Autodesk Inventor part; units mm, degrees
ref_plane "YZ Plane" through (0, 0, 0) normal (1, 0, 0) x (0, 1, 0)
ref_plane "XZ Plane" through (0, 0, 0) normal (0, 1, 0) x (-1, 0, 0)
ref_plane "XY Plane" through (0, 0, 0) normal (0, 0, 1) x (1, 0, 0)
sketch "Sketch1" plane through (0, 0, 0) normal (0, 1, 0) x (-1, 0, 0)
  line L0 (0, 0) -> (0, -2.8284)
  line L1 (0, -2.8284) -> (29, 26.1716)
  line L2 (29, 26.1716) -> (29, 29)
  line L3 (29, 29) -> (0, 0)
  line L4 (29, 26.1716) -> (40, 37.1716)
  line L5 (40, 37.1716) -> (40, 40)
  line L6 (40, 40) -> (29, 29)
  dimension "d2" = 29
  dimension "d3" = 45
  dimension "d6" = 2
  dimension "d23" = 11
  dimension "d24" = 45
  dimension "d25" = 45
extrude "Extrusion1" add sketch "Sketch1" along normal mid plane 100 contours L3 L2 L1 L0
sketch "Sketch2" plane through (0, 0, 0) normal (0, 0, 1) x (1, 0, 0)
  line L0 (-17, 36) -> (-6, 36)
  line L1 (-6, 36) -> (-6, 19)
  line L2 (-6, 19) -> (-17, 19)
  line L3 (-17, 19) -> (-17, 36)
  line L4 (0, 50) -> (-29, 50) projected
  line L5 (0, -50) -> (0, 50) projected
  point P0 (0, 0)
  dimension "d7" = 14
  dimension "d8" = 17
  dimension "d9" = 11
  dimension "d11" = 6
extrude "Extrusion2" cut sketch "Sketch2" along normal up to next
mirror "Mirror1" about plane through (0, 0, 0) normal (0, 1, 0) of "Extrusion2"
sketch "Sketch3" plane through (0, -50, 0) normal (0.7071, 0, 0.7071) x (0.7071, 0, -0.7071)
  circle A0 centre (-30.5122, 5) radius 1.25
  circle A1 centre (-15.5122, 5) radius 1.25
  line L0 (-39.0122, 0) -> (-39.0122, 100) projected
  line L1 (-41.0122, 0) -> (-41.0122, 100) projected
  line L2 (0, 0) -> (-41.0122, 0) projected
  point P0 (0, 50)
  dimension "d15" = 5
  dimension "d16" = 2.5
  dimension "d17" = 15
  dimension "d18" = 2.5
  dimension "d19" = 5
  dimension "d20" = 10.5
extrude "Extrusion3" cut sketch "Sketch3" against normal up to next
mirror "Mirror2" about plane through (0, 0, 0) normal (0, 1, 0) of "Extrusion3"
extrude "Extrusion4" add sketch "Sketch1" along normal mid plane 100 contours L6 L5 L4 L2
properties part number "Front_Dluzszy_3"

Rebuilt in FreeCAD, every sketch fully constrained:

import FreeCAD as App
import Part
import Sketcher
Q = App.Units.Quantity

doc = App.newDocument("Part")
params = doc.addObject("Spreadsheet::Sheet", "Params")
for row, (alias, value) in enumerate([
    ("pad1_length", "100 mm"),
    ("sketch2_width", "11 mm"),
    ("sketch2_height", "17 mm"),
    ("pocket1_length", "17 mm"),
    ("sketch3_diameter", "2.5 mm"),
    ("pad2_length", "100 mm"),
], start=1):
    params.set(f"A{row}", alias)
    params.set(f"B{row}", "=" + value)
    params.setAlias(f"B{row}", alias)

body = doc.addObject("PartDesign::Body", "Body")

sketch1 = body.newObject("Sketcher::SketchObject", "Sketch")
sketch1.AttachmentSupport = (doc.getObject("XZ_Plane"), [""])
sketch1.MapMode = "FlatFace"
sketch1.addGeometry([
    Part.LineSegment(App.Vector(-29, 29, 0), App.Vector(0, 0, 0)),
    Part.LineSegment(App.Vector(0, 0, 0), App.Vector(0, -2.8284, 0)),
    Part.LineSegment(App.Vector(0, -2.8284, 0), App.Vector(-29, 26.1716, 0)),
    Part.LineSegment(App.Vector(-29, 26.1716, 0), App.Vector(-29, 29, 0)),
], False)
sketch1.addConstraint([
    Sketcher.Constraint("Coincident", 0, 2, 1, 1),
    Sketcher.Constraint("Coincident", 1, 2, 2, 1),
    Sketcher.Constraint("Coincident", 2, 2, 3, 1),
    Sketcher.Constraint("Coincident", 3, 2, 0, 1),
    Sketcher.Constraint("Vertical", 1),
    Sketcher.Constraint("Vertical", 3),
    Sketcher.Constraint("Coincident", 0, 2, -1, 1),
    Sketcher.Constraint("Parallel", 0, 2),
    Sketcher.Constraint("Angle", 0, Q("-45 deg")),
    Sketcher.Constraint("DistanceX", 2, 2, -1, 1, Q("29 mm")),
    Sketcher.Constraint("DistanceY", 1, 2, 1, 1, Q("2.8284 mm")),
])
pad1 = body.newObject("PartDesign::Pad", "Pad")
pad1.Profile = sketch1
pad1.setExpression("Length", "Params.pad1_length")
pad1.Midplane = True

sketch2 = body.newObject("Sketcher::SketchObject", "Sketch001")
sketch2.AttachmentSupport = (doc.getObject("XY_Plane"), [""])
sketch2.MapMode = "FlatFace"
sketch2.addGeometry([
    Part.LineSegment(App.Vector(-6, 36, 0), App.Vector(-17, 36, 0)),
    Part.LineSegment(App.Vector(-17, 36, 0), App.Vector(-17, 19, 0)),
    Part.LineSegment(App.Vector(-17, 19, 0), App.Vector(-6, 19, 0)),
    Part.LineSegment(App.Vector(-6, 19, 0), App.Vector(-6, 36, 0)),
], False)
sketch2.addConstraint([
    Sketcher.Constraint("Coincident", 0, 2, 1, 1),
    Sketcher.Constraint("Coincident", 1, 2, 2, 1),
    Sketcher.Constraint("Coincident", 2, 2, 3, 1),
    Sketcher.Constraint("Coincident", 3, 2, 0, 1),
    Sketcher.Constraint("Horizontal", 0),
    Sketcher.Constraint("Vertical", 1),
    Sketcher.Constraint("Horizontal", 2),
    Sketcher.Constraint("Vertical", 3),
    Sketcher.Constraint("DistanceX", 0, 2, 0, 1, Q("11 mm")),
    Sketcher.Constraint("DistanceY", 1, 2, 1, 1, Q("17 mm")),
    Sketcher.Constraint("DistanceX", 0, 2, -1, 1, Q("17 mm")),
    Sketcher.Constraint("DistanceY", -1, 1, 0, 2, Q("36 mm")),
])
sketch2.setExpression("Constraints[8]", "Params.sketch2_width")
sketch2.setExpression("Constraints[9]", "Params.sketch2_height")
pocket1 = body.newObject("PartDesign::Pocket", "Pocket")
pocket1.Profile = sketch2
pocket1.setExpression("Length", "Params.pocket1_length")
pocket1.Reversed = True
doc.recompute()

mirrored = body.newObject("PartDesign::Mirrored", "Mirrored")
mirrored.Originals = [pocket1]
mirrored.MirrorPlane = (doc.getObject("XZ_Plane"), [""])
body.Tip = mirrored

sketch3 = body.newObject("Sketcher::SketchObject", "Sketch002")
sketch3.Placement = App.Placement(App.Vector(0, -50, 0), App.Rotation(App.Vector(0.707106781, 0, -0.707106781), App.Vector(0, 0.999999999, 0), App.Vector(0.707106781, 0, 0.707106781), "ZXY"))
sketch3.addGeometry([
    Part.Circle(App.Vector(-30.5122, 5, 0), App.Vector(0, 0, 1), 1.25),
    Part.Circle(App.Vector(-15.5122, 5, 0), App.Vector(0, 0, 1), 1.25),
], False)
sketch3.addConstraint([
    Sketcher.Constraint("Equal", 0, 1),
    Sketcher.Constraint("Horizontal", 0, 3, 1, 3),
    Sketcher.Constraint("Diameter", 0, Q("2.5 mm")),
    Sketcher.Constraint("DistanceY", -1, 1, 0, 3, Q("5 mm")),
    Sketcher.Constraint("DistanceX", 0, 3, 1, 3, Q("15 mm")),
    Sketcher.Constraint("DistanceX", 0, 3, -1, 1, Q("30.5122 mm")),
])
sketch3.setExpression("Constraints[2]", "Params.sketch3_diameter")
pocket2 = body.newObject("PartDesign::Pocket", "Pocket001")
pocket2.Profile = sketch3
pocket2.Type = "UpToFirst"
doc.recompute()

mirrored2 = body.newObject("PartDesign::Mirrored", "Mirrored001")
mirrored2.Originals = [pocket2]
mirrored2.MirrorPlane = (doc.getObject("XZ_Plane"), [""])
body.Tip = mirrored2

sketch4 = body.newObject("Sketcher::SketchObject", "Sketch003")
sketch4.AttachmentSupport = (doc.getObject("XZ_Plane"), [""])
sketch4.MapMode = "FlatFace"
sketch4.addGeometry([
    Part.LineSegment(App.Vector(-40, 40, 0), App.Vector(-29, 29, 0)),
    Part.LineSegment(App.Vector(-29, 29, 0), App.Vector(-29, 26.1716, 0)),
    Part.LineSegment(App.Vector(-29, 26.1716, 0), App.Vector(-40, 37.1716, 0)),
    Part.LineSegment(App.Vector(-40, 37.1716, 0), App.Vector(-40, 40, 0)),
], False)
sketch4.addConstraint([
    Sketcher.Constraint("Coincident", 0, 2, 1, 1),
    Sketcher.Constraint("Coincident", 1, 2, 2, 1),
    Sketcher.Constraint("Coincident", 2, 2, 3, 1),
    Sketcher.Constraint("Coincident", 3, 2, 0, 1),
    Sketcher.Constraint("Vertical", 1),
    Sketcher.Constraint("Vertical", 3),
    Sketcher.Constraint("Parallel", 0, 2),
    Sketcher.Constraint("Angle", 0, Q("-45 deg")),
    Sketcher.Constraint("DistanceX", 0, 2, -1, 1, Q("29 mm")),
    Sketcher.Constraint("DistanceY", -1, 1, 0, 2, Q("29 mm")),
    Sketcher.Constraint("DistanceX", 2, 2, 0, 2, Q("11 mm")),
    Sketcher.Constraint("DistanceY", 1, 2, 1, 1, Q("2.8284 mm")),
])
pad2 = body.newObject("PartDesign::Pad", "Pad001")
pad2.Profile = sketch4
pad2.setExpression("Length", "Params.pad2_length")
pad2.Midplane = True

doc.recompute()
